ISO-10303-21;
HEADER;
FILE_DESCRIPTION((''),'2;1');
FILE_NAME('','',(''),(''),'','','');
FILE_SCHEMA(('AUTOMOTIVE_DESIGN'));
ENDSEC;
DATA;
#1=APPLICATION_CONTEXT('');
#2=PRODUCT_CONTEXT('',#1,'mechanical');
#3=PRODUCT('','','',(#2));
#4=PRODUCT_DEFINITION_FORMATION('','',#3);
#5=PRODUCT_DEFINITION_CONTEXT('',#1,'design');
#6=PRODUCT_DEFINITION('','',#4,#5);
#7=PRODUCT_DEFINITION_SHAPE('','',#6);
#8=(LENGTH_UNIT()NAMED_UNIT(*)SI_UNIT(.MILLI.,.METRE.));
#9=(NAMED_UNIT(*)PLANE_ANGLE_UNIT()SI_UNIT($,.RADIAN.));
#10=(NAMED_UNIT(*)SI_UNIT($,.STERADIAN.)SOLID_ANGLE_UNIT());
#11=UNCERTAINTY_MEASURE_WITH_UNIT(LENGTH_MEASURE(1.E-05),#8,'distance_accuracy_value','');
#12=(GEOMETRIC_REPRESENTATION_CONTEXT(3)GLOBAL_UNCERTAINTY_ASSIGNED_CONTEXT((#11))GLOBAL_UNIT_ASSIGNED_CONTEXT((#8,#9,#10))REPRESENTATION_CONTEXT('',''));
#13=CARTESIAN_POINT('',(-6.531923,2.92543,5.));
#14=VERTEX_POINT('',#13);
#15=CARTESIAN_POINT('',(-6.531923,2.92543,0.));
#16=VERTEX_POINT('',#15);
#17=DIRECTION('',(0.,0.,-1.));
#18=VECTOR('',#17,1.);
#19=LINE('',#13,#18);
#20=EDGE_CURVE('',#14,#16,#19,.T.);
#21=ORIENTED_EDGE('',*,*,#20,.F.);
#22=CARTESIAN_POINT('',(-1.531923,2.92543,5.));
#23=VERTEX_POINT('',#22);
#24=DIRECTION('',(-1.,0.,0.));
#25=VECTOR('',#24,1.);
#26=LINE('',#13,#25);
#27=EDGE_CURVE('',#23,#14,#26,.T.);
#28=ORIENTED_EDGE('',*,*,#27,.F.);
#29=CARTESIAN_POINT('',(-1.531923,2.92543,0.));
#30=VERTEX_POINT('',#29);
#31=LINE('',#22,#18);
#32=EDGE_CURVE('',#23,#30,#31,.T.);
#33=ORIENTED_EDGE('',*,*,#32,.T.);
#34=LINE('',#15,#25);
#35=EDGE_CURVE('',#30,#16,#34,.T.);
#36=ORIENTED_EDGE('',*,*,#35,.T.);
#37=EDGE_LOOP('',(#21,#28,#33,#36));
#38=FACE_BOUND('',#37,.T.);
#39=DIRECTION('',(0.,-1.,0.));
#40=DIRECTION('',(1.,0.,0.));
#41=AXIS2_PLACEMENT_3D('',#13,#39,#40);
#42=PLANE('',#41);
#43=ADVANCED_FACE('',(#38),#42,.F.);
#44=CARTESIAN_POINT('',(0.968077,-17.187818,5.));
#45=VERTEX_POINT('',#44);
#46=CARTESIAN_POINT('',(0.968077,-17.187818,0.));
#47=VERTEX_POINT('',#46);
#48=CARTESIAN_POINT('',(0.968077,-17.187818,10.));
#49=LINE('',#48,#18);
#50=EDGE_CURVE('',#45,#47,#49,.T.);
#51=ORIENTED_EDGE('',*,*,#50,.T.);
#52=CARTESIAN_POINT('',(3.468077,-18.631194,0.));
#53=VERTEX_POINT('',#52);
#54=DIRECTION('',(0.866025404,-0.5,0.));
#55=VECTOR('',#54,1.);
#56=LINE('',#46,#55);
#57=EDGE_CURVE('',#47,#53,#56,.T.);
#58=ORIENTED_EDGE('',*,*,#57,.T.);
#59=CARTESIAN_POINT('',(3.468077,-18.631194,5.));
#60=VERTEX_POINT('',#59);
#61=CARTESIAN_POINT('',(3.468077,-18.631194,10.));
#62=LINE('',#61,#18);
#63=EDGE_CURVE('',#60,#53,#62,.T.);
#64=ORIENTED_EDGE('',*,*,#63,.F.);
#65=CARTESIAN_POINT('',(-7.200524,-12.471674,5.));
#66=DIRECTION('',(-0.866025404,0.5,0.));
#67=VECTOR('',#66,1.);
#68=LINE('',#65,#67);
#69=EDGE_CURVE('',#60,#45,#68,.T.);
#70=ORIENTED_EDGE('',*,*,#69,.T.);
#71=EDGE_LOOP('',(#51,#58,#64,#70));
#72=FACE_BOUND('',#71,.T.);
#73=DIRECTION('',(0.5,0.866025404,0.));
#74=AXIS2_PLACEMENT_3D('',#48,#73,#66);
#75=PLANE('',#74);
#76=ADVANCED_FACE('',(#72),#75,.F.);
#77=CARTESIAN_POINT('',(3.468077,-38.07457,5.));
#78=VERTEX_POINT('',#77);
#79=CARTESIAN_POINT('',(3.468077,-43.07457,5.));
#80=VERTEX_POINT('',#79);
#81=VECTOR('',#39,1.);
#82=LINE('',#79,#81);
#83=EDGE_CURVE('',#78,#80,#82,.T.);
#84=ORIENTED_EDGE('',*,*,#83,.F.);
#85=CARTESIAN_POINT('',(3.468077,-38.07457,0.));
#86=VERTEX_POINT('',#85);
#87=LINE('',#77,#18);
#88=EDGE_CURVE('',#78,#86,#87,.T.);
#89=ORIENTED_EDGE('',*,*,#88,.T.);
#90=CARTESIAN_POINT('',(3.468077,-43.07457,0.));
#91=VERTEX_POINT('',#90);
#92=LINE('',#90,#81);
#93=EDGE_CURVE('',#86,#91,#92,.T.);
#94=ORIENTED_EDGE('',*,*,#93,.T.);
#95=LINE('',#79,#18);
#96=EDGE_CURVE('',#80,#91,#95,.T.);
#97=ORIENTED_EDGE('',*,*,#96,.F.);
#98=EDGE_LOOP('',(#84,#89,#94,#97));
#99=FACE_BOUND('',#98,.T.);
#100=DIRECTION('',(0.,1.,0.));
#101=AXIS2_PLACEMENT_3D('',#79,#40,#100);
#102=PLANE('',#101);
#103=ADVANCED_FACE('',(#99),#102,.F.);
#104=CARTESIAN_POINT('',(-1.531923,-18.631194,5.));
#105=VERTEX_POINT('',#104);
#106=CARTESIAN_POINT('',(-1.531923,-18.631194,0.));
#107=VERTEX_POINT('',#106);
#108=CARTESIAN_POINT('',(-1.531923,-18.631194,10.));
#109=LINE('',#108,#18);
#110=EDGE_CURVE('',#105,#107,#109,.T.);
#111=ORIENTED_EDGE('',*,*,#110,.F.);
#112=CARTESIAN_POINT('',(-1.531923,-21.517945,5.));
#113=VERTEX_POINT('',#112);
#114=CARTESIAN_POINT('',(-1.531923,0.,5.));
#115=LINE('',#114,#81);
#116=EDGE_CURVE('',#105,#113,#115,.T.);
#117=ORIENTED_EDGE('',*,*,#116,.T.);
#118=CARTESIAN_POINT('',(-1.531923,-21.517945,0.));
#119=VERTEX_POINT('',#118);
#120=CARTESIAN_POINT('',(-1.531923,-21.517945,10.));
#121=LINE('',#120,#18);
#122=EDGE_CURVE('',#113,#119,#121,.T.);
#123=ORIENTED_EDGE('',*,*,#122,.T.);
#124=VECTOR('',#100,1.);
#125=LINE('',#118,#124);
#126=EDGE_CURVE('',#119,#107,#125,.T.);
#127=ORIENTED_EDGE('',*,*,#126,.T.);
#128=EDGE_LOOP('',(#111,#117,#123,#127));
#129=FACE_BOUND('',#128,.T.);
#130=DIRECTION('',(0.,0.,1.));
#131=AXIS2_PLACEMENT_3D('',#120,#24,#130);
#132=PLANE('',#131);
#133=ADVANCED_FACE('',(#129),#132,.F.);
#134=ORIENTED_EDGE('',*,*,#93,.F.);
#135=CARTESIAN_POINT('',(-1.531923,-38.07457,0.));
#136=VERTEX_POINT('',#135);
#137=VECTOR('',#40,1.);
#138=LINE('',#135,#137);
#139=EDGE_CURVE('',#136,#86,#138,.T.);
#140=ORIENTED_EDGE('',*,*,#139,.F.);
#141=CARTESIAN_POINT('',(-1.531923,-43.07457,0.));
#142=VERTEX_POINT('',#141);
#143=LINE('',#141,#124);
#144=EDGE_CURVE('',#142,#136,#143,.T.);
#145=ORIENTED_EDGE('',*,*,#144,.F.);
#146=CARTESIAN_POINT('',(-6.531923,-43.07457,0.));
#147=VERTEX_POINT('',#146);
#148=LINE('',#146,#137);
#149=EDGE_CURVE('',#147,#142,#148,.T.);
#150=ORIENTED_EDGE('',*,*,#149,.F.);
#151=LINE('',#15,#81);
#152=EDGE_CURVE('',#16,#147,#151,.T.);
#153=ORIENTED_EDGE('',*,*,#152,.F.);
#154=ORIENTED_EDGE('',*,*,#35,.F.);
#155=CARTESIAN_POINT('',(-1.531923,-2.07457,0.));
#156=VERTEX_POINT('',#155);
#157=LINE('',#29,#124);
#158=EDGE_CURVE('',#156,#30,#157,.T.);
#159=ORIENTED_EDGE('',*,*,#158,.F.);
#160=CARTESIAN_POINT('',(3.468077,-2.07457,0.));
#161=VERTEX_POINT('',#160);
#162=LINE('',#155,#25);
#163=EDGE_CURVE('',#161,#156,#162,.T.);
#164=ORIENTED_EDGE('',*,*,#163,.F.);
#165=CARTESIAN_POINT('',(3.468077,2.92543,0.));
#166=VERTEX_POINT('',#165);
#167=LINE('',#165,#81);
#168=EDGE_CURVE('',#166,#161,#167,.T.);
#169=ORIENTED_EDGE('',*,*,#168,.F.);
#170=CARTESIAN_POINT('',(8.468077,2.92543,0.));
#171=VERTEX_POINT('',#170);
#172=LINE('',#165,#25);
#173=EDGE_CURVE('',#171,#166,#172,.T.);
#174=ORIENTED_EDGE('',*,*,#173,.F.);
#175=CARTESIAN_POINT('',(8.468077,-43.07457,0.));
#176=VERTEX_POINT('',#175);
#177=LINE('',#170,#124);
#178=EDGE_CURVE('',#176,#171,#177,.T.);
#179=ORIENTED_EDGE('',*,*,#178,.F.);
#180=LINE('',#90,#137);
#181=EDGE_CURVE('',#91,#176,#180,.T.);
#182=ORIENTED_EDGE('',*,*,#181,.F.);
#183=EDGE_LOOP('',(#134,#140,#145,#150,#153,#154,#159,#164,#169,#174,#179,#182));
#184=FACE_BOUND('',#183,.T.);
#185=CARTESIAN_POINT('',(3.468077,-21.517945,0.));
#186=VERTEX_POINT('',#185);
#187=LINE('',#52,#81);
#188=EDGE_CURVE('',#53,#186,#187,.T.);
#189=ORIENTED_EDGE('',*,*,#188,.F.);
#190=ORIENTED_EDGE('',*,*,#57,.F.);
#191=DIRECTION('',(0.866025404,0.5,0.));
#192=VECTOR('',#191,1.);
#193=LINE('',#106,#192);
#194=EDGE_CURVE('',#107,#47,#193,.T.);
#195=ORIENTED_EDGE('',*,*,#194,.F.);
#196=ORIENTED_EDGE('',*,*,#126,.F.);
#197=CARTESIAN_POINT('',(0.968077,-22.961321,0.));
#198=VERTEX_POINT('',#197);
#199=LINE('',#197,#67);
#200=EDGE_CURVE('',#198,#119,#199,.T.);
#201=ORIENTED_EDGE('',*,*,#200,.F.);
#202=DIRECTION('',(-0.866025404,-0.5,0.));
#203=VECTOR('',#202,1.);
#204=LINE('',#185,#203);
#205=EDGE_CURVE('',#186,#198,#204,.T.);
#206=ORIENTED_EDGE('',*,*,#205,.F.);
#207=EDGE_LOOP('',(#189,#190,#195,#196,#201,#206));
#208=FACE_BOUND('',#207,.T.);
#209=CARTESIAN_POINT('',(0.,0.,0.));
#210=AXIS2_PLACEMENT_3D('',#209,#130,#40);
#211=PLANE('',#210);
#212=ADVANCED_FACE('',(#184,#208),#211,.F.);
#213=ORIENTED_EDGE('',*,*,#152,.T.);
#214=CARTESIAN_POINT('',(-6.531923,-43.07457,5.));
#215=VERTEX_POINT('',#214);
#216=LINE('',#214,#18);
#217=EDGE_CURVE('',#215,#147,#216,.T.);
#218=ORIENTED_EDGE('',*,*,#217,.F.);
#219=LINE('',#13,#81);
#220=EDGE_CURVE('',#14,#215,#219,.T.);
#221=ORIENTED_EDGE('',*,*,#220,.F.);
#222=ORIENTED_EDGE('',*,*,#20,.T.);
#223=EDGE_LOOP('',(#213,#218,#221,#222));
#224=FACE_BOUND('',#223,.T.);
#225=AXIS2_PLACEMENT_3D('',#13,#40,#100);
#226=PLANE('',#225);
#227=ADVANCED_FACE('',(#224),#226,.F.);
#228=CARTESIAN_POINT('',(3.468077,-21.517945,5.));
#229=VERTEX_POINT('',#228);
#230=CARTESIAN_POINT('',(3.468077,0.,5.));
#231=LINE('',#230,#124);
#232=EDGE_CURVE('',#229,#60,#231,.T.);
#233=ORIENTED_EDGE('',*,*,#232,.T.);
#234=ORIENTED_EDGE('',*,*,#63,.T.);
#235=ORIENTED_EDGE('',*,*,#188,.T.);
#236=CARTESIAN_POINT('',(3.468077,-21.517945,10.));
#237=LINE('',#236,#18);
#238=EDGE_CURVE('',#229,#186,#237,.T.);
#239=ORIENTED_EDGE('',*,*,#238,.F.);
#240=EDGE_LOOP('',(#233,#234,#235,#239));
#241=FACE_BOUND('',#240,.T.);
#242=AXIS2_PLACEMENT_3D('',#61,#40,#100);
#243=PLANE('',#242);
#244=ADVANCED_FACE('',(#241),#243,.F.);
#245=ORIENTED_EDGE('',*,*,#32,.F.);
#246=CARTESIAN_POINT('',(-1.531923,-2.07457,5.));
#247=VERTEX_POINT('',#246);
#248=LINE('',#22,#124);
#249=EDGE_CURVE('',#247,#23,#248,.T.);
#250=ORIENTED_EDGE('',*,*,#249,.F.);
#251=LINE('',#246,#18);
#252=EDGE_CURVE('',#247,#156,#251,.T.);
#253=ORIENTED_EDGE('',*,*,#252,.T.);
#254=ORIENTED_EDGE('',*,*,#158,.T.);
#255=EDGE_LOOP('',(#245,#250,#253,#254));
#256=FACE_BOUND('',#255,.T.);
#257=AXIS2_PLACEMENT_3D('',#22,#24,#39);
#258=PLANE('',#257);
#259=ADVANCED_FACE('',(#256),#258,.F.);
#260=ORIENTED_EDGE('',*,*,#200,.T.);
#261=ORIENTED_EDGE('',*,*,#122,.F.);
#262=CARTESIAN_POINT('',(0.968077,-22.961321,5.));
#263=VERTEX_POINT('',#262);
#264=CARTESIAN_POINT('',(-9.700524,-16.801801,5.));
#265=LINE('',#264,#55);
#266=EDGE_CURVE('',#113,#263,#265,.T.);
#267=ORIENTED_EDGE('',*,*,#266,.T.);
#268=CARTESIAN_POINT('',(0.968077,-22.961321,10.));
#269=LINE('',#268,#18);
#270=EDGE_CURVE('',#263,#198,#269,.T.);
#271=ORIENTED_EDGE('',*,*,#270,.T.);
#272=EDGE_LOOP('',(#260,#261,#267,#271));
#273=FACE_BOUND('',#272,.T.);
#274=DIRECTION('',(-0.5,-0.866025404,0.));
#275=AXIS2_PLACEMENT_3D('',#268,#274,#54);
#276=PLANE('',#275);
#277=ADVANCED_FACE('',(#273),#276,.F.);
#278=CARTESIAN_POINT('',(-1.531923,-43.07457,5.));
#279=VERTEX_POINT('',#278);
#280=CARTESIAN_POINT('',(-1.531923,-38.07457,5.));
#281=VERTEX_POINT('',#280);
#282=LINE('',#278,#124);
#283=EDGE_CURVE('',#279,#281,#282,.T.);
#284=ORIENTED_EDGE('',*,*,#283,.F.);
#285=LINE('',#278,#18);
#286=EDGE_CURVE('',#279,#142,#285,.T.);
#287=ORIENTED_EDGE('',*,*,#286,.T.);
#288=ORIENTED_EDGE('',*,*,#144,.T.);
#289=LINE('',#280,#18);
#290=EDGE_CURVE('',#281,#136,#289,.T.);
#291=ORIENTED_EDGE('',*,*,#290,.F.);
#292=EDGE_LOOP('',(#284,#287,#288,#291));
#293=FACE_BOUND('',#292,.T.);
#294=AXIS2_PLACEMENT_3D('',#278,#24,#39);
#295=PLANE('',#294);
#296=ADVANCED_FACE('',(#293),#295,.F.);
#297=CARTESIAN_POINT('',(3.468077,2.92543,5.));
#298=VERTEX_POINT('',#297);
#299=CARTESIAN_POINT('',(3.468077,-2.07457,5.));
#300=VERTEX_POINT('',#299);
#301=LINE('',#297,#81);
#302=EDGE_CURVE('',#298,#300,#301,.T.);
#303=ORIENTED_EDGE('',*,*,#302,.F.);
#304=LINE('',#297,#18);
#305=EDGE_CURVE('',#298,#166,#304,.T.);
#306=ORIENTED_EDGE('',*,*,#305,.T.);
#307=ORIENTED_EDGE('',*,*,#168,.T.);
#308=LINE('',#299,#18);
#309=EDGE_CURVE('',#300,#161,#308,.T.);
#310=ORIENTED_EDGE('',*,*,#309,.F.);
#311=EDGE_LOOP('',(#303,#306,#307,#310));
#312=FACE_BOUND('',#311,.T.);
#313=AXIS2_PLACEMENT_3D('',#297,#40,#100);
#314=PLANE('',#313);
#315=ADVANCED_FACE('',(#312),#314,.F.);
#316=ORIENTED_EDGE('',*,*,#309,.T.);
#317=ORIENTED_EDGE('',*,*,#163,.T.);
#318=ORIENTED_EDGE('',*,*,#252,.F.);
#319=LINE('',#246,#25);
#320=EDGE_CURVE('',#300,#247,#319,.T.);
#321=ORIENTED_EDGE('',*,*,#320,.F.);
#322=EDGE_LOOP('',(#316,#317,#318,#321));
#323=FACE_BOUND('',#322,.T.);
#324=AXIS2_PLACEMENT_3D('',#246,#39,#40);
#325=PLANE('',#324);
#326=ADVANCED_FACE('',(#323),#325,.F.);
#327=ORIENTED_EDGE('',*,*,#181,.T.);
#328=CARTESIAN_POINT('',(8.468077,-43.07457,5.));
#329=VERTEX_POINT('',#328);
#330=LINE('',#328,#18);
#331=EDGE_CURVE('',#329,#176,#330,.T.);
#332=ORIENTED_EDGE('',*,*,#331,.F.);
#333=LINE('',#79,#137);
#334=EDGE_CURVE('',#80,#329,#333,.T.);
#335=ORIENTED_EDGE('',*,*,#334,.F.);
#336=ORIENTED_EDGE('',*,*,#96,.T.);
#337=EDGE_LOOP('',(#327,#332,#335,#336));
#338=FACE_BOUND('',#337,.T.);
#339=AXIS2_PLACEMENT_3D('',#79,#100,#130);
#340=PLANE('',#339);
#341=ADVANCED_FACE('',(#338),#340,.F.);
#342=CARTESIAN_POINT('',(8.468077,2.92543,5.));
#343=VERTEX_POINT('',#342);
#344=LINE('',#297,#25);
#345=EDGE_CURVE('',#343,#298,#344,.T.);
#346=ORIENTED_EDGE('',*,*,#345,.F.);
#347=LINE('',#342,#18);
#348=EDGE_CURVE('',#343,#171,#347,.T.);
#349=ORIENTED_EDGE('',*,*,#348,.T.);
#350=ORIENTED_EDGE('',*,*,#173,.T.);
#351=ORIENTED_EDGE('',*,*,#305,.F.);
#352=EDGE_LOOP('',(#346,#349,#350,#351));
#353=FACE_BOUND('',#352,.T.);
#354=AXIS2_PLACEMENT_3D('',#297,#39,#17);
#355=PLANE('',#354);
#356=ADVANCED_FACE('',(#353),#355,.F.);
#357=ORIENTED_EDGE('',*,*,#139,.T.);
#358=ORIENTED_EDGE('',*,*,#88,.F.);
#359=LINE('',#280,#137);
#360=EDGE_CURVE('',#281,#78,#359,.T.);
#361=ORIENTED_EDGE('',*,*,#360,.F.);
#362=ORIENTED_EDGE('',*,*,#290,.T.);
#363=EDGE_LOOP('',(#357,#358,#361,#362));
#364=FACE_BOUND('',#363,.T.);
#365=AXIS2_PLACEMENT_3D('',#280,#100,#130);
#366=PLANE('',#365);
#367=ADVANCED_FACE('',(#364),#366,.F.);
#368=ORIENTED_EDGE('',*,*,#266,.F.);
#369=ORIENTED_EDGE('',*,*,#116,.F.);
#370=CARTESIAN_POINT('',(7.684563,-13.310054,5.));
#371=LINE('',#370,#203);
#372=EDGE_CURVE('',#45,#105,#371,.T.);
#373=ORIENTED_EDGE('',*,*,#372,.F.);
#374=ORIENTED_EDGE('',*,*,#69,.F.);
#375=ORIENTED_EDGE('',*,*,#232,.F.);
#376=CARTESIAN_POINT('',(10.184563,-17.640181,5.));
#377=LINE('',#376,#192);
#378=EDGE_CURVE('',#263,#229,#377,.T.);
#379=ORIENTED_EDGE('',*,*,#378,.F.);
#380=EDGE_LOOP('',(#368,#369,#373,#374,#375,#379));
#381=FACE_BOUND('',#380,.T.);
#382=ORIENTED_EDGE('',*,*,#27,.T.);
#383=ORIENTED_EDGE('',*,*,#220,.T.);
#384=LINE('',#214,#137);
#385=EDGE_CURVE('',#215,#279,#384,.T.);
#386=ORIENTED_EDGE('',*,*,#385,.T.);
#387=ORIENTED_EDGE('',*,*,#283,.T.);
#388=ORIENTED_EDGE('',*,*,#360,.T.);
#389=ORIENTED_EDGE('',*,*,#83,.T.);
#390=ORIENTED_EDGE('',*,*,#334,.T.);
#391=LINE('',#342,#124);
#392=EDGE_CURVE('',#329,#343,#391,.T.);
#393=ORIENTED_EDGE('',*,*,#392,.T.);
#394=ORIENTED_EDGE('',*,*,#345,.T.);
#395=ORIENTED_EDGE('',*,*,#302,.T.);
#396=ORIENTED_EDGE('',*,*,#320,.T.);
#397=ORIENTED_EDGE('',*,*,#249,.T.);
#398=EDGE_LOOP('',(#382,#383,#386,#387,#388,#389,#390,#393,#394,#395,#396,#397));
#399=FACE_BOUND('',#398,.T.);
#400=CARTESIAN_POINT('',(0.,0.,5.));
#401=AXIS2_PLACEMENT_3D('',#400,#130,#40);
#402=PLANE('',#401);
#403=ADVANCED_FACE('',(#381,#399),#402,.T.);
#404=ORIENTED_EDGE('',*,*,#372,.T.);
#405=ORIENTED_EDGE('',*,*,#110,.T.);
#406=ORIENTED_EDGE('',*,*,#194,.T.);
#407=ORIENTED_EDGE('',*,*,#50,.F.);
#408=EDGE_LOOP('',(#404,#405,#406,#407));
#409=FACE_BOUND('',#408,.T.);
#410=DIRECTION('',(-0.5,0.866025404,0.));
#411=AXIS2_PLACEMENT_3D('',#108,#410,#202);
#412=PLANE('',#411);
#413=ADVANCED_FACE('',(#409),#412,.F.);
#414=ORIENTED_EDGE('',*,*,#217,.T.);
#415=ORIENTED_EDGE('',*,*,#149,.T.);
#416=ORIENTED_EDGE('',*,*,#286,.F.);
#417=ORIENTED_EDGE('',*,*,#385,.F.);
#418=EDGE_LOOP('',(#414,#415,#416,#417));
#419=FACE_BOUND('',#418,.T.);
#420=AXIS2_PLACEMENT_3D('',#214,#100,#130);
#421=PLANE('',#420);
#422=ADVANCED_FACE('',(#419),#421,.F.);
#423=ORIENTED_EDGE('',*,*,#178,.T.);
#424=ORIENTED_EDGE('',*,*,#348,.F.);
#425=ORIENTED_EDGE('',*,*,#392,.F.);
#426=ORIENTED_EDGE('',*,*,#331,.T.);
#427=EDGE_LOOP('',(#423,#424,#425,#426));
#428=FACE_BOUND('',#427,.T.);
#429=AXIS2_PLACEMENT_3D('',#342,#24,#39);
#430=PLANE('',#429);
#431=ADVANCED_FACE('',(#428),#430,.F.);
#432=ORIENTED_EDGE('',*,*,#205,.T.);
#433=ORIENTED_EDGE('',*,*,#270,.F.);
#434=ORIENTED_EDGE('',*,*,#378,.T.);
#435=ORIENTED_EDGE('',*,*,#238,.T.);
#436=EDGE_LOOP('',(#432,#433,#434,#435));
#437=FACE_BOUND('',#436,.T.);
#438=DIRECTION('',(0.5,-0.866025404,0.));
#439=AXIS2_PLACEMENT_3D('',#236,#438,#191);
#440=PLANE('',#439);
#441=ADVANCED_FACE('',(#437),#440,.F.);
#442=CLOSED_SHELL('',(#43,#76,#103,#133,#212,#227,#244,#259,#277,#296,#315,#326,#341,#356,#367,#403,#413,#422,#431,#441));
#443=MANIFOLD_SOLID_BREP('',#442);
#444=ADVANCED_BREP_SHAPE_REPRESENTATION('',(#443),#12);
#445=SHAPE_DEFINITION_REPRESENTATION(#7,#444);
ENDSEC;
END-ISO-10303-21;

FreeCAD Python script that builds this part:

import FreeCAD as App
import Part
import Sketcher

V = App.Vector
Q = App.Units.Quantity


def add_polygon(sketch, points):
    """Adds a closed chain of lines whose ends are joined by coincident constraints."""
    first, n = sketch.GeometryCount, len(points)
    for a, b in zip(points, points[1:] + points[:1]):
        sketch.addGeometry(Part.LineSegment(App.Vector(*a, 0), App.Vector(*b, 0)), False)
    for i in range(n):
        sketch.addConstraint(Sketcher.Constraint("Coincident", first + i, 2, first + (i + 1) % n, 1))

doc = App.newDocument("Part")
body = doc.addObject("PartDesign::Body", "Body")

# Sketch on XY plane
sketch1 = doc.addObject("Sketcher::SketchObject", "Sketch")
body.addObject(sketch1)
sketch1.AttachmentSupport = (doc.XY_Plane, [""])
sketch1.MapMode = "FlatFace"
add_polygon(sketch1, [(8.468077, 2.92543), (3.468077, 2.92543), (3.468077, -2.07457), (-1.531923, -2.07457), (-1.531923, 2.92543), (-6.531923, 2.92543), (-6.531923, -43.07457), (-1.531923, -43.07457), (-1.531923, -38.07457), (3.468077, -38.07457), (3.468077, -43.07457), (8.468077, -43.07457)])  # lines 0-11
sketch1.addConstraint(Sketcher.Constraint("Horizontal", 0))
sketch1.addConstraint(Sketcher.Constraint("Vertical", 1))
sketch1.addConstraint(Sketcher.Constraint("Horizontal", 2))
sketch1.addConstraint(Sketcher.Constraint("Vertical", 3))
sketch1.addConstraint(Sketcher.Constraint("Horizontal", 4))
sketch1.addConstraint(Sketcher.Constraint("Vertical", 5))
sketch1.addConstraint(Sketcher.Constraint("Horizontal", 6))
sketch1.addConstraint(Sketcher.Constraint("Vertical", 7))
sketch1.addConstraint(Sketcher.Constraint("Horizontal", 8))
sketch1.addConstraint(Sketcher.Constraint("Vertical", 9))
sketch1.addConstraint(Sketcher.Constraint("Horizontal", 10))
sketch1.addConstraint(Sketcher.Constraint("Vertical", 11))
sketch1.addConstraint(Sketcher.Constraint("Horizontal", 0, 2, 3, 2))
sketch1.addConstraint(Sketcher.Constraint("Horizontal", 6, 2, 9, 2))
sketch1.addConstraint(Sketcher.Constraint("Vertical", 3, 2, 6, 2))
sketch1.addConstraint(Sketcher.Constraint("Vertical", 1, 2, 8, 2))
sketch1.addConstraint(Sketcher.Constraint("Equal", 0, 2))
sketch1.addConstraint(Sketcher.Constraint("Equal", 2, 4))
sketch1.addConstraint(Sketcher.Constraint("Equal", 10, 1))
sketch1.addConstraint(Sketcher.Constraint("Equal", 3, 7))
sketch1.addConstraint(Sketcher.Constraint("DistanceX", 0, 2, 0, 1, 5.0))
sketch1.addConstraint(Sketcher.Constraint("DistanceY", 5, 2, 5, 1, 46.0))
sketch1.addConstraint(Sketcher.Constraint("DistanceY", -1, 1, 0, 2, 2.92543))
sketch1.addConstraint(Sketcher.Constraint("DistanceX", -1, 1, 0, 2, 3.468077))
pad1 = doc.addObject("PartDesign::Pad", "Pad")
body.addObject(pad1)
pad1.Profile = sketch1
pad1.Length = 5

# Sketch on XY plane
sketch2 = doc.addObject("Sketcher::SketchObject", "Sketch001")
body.addObject(sketch2)
sketch2.AttachmentSupport = (doc.XY_Plane, [""])
sketch2.MapMode = "FlatFace"
add_polygon(sketch2, [(3.468077, -21.517945), (0.968077, -22.961321), (-1.531923, -21.517945), (-1.531923, -18.631194), (0.968077, -17.187818), (3.468077, -18.631194)])  # lines 0-5
sketch2.addConstraint(Sketcher.Constraint("Vertical", 2))
sketch2.addConstraint(Sketcher.Constraint("Vertical", 5))
sketch2.addConstraint(Sketcher.Constraint("Parallel", 0, 3))
sketch2.addConstraint(Sketcher.Constraint("Parallel", 1, 4))
sketch2.addConstraint(Sketcher.Constraint("Horizontal", 2, 2, 4, 2))
sketch2.addConstraint(Sketcher.Constraint("Horizontal", 1, 2, 5, 2))
sketch2.addConstraint(Sketcher.Constraint("Vertical", 0, 2, 3, 2))
sketch2.addConstraint(Sketcher.Constraint("Angle", 0, Q("-150 deg")))
sketch2.addConstraint(Sketcher.Constraint("DistanceX", 2, 2, 4, 2, 5.0))
sketch2.addConstraint(Sketcher.Constraint("DistanceY", 2, 1, 2, 2, 2.886751))
sketch2.addConstraint(Sketcher.Constraint("DistanceY", 0, 2, -1, 1, 22.961321))
sketch2.addConstraint(Sketcher.Constraint("DistanceX", -1, 1, 0, 2, 0.968077))
pocket1 = doc.addObject("PartDesign::Pocket", "Pocket")
body.addObject(pocket1)
pocket1.Profile = sketch2
pocket1.Length = 10
pocket1.Reversed = True

doc.recompute()
